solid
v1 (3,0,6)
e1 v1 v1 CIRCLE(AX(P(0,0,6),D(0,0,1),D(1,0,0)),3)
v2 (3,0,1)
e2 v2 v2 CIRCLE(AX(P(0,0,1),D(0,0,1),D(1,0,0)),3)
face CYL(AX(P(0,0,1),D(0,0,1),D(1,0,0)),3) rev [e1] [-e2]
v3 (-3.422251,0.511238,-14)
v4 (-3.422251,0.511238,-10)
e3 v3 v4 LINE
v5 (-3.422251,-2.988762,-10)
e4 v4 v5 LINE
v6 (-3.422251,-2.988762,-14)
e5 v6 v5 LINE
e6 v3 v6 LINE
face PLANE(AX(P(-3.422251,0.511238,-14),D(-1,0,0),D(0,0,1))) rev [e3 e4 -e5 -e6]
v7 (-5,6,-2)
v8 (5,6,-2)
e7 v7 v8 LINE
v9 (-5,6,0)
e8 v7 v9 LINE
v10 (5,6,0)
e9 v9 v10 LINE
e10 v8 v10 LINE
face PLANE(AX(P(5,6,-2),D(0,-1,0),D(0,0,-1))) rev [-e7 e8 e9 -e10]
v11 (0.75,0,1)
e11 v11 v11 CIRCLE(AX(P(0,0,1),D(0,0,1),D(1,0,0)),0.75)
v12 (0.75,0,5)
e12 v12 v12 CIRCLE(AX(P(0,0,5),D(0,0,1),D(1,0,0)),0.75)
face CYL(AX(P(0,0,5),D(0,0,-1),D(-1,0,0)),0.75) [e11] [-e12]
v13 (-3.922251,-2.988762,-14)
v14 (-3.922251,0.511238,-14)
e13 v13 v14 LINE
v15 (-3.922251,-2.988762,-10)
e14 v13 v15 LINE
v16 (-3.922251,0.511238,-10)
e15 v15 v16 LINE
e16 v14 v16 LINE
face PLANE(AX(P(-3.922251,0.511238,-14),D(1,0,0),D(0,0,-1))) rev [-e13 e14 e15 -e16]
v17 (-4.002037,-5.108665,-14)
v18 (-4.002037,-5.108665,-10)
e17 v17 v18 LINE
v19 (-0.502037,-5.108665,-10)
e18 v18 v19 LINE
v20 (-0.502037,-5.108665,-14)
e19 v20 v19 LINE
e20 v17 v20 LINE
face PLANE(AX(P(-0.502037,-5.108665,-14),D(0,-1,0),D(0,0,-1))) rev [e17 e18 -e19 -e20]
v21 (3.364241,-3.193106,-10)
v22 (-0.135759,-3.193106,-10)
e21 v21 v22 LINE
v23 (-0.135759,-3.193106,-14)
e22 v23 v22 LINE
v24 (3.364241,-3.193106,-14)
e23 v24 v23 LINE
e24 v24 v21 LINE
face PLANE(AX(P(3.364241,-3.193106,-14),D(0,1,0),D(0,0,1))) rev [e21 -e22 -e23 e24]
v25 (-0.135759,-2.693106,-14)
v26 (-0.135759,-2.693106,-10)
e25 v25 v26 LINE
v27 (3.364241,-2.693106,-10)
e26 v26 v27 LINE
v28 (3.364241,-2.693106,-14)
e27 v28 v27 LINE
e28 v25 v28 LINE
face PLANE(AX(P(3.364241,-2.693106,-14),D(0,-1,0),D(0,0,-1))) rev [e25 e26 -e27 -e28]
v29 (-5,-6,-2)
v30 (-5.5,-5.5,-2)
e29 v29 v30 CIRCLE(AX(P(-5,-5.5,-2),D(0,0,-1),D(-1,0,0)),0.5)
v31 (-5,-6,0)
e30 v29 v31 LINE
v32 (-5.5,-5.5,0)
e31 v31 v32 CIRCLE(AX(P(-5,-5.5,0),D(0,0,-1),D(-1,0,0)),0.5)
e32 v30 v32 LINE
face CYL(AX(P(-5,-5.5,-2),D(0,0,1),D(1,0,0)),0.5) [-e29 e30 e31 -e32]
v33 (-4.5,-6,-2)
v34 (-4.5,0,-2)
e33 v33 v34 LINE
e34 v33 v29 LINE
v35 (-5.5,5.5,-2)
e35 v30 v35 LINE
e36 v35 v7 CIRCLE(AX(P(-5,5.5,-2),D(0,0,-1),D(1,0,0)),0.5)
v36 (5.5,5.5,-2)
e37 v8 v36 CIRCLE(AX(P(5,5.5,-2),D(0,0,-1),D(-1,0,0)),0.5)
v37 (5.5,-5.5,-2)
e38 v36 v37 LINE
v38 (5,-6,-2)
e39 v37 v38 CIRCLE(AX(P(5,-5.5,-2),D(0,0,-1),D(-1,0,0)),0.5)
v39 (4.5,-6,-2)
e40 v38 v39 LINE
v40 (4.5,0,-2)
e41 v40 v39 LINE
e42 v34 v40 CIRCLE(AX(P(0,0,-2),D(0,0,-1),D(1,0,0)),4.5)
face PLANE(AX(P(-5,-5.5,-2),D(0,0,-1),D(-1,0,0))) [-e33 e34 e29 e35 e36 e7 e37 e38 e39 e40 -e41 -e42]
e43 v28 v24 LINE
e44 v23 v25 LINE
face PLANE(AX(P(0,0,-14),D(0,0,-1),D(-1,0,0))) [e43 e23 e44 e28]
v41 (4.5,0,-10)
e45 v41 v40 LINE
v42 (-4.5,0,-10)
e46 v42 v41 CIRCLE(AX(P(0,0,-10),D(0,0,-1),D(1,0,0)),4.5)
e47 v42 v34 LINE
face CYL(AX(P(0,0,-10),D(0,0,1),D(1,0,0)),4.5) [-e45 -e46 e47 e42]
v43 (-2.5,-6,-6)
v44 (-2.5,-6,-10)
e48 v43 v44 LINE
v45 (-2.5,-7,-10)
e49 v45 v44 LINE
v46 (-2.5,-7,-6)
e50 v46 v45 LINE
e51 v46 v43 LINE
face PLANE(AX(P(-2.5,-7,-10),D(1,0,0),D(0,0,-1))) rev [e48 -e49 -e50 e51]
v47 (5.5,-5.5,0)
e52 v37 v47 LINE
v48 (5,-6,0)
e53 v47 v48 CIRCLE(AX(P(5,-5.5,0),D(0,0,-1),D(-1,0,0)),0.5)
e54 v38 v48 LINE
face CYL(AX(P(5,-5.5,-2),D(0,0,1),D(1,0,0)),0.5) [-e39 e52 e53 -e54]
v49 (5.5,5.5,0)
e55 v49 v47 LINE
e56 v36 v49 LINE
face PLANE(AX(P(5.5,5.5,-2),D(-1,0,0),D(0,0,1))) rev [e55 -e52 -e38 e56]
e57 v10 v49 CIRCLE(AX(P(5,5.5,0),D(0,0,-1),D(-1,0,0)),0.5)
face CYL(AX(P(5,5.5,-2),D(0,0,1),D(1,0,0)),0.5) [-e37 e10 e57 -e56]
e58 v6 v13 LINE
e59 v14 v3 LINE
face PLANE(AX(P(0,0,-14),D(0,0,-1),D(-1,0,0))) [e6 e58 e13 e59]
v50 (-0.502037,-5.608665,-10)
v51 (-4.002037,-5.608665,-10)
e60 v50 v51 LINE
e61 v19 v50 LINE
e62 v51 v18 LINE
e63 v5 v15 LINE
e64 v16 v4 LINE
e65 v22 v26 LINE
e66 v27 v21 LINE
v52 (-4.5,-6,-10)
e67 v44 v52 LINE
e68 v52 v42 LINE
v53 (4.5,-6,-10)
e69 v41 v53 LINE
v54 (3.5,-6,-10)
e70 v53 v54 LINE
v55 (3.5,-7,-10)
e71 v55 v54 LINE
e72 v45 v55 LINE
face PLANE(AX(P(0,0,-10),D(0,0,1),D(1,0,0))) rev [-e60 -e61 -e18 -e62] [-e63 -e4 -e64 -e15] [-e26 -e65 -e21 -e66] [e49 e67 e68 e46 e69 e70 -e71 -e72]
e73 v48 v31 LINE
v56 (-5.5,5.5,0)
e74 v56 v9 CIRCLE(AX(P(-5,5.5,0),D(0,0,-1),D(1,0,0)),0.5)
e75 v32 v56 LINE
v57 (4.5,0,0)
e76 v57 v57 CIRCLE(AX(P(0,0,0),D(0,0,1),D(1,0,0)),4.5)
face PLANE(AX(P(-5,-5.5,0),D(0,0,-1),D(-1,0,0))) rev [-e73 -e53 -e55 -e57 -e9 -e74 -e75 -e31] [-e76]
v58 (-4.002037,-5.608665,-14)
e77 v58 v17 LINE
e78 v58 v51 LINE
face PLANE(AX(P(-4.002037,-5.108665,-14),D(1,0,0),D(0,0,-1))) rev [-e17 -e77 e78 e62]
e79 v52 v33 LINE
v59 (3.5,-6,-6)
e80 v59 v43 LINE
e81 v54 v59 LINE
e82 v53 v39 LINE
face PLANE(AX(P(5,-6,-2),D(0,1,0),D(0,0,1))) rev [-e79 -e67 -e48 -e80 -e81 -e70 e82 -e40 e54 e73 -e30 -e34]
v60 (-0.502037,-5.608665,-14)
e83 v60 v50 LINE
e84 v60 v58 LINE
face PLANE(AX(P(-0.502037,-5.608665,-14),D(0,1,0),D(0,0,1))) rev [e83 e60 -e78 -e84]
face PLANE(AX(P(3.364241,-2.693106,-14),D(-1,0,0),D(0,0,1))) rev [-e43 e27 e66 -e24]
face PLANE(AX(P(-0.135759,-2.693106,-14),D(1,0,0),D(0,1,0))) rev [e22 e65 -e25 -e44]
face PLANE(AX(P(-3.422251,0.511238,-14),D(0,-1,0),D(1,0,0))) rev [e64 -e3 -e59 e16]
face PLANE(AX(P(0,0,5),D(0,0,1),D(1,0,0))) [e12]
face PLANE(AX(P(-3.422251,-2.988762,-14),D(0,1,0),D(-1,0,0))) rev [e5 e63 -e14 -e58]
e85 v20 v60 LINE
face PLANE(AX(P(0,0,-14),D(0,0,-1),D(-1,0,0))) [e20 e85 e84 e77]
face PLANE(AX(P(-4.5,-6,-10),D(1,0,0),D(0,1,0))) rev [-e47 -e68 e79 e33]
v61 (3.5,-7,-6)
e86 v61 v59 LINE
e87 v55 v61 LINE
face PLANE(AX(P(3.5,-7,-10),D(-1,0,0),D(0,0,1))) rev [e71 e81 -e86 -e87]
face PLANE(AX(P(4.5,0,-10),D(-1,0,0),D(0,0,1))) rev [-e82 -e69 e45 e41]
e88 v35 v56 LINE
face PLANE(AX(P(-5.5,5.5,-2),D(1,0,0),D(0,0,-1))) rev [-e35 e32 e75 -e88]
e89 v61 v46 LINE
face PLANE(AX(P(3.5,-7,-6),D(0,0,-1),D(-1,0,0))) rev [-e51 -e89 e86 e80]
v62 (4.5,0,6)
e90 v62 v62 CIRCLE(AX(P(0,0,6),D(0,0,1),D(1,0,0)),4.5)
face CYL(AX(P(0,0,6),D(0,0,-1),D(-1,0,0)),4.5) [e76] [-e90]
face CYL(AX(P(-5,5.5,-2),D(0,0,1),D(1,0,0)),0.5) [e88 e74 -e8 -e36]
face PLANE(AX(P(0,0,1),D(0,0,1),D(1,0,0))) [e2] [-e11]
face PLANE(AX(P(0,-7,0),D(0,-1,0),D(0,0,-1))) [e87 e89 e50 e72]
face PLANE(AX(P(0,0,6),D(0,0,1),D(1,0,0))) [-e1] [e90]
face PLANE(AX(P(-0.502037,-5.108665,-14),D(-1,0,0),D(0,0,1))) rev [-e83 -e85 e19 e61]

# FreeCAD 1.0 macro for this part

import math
import FreeCAD as App
import Part
import Sketcher
from FreeCAD import Vector

doc = App.newDocument("Part")
body = doc.addObject("PartDesign::Body", "Body")

sketch1 = body.newObject("Sketcher::SketchObject", "Sketch")
sketch1.AttachmentSupport = (doc.getObject("XY_Plane"), [""])
sketch1.MapMode = "FlatFace"
sketch1.addGeometry(Part.Circle(Vector(0, 0, 0), Vector(0, 0, 1), 4.5), False)
sketch1.addConstraint(Sketcher.Constraint("Coincident", 0, 3, -1, 1))
sketch1.addConstraint(Sketcher.Constraint("Diameter", 0, 9.0))
pad1 = body.newObject("PartDesign::Pad", "Pad")
pad1.Profile = sketch1
pad1.Length = 6

sketch2 = body.newObject("Sketcher::SketchObject", "Sketch001")
sketch2.AttachmentSupport = (doc.getObject("XY_Plane"), [""])
sketch2.MapMode = "FlatFace"
sketch2.AttachmentOffset = App.Placement(Vector(0, 0, 6), App.Rotation())
sketch2.addGeometry(Part.Circle(Vector(0, 0, 0), Vector(0, 0, 1), 3), False)
sketch2.addConstraint(Sketcher.Constraint("Coincident", 0, 3, -1, 1))
sketch2.addConstraint(Sketcher.Constraint("Diameter", 0, 6.0))
pocket1 = body.newObject("PartDesign::Pocket", "Pocket")
pocket1.Profile = sketch2
pocket1.Length = 5

sketch3 = body.newObject("Sketcher::SketchObject", "Sketch002")
sketch3.AttachmentSupport = (doc.getObject("XY_Plane"), [""])
sketch3.MapMode = "FlatFace"
sketch3.AttachmentOffset = App.Placement(Vector(0, 0, 1), App.Rotation())
sketch3.addGeometry(Part.Circle(Vector(0, 0, 0), Vector(0, 0, 1), 0.8), False)
sketch3.addConstraint(Sketcher.Constraint("Coincident", 0, 3, -1, 1))
sketch3.addConstraint(Sketcher.Constraint("Diameter", 0, 1.5))
pad2 = body.newObject("PartDesign::Pad", "Pad001")
pad2.Profile = sketch3
pad2.Length = 4

sketch4 = body.newObject("Sketcher::SketchObject", "Sketch003")
sketch4.AttachmentSupport = (doc.getObject("XY_Plane"), [""])
sketch4.MapMode = "FlatFace"
sketch4.addGeometry(Part.LineSegment(Vector(-5, 6, 0), Vector(5, 6, 0)), False)
sketch4.addGeometry(Part.ArcOfCircle(Part.Circle(Vector(5, 5.5, 0), Vector(0, 0, 1), 0.5), math.radians(0), math.radians(90)), False)
sketch4.addGeometry(Part.LineSegment(Vector(5.5, 5.5, 0), Vector(5.5, -5.5, 0)), False)
sketch4.addGeometry(Part.ArcOfCircle(Part.Circle(Vector(5, -5.5, 0), Vector(0, 0, 1), 0.5), math.radians(-90), math.radians(0)), False)
sketch4.addGeometry(Part.LineSegment(Vector(5, -6, 0), Vector(-5, -6, 0)), False)
sketch4.addGeometry(Part.ArcOfCircle(Part.Circle(Vector(-5, -5.5, 0), Vector(0, 0, 1), 0.5), math.radians(180), math.radians(270)), False)
sketch4.addGeometry(Part.LineSegment(Vector(-5.5, -5.5, 0), Vector(-5.5, 5.5, 0)), False)
sketch4.addGeometry(Part.ArcOfCircle(Part.Circle(Vector(-5, 5.5, 0), Vector(0, 0, 1), 0.5), math.radians(90), math.radians(180)), False)
sketch4.addConstraint(Sketcher.Constraint("Tangent", 0, 2, 1, 2))
sketch4.addConstraint(Sketcher.Constraint("Tangent", 1, 1, 2, 1))
sketch4.addConstraint(Sketcher.Constraint("Tangent", 2, 2, 3, 2))
sketch4.addConstraint(Sketcher.Constraint("Tangent", 3, 1, 4, 1))
sketch4.addConstraint(Sketcher.Constraint("Tangent", 4, 2, 5, 2))
sketch4.addConstraint(Sketcher.Constraint("Tangent", 5, 1, 6, 1))
sketch4.addConstraint(Sketcher.Constraint("Tangent", 6, 2, 7, 2))
sketch4.addConstraint(Sketcher.Constraint("Tangent", 7, 1, 0, 1))
sketch4.addConstraint(Sketcher.Constraint("Horizontal", 0))
sketch4.addConstraint(Sketcher.Constraint("Vertical", 2))
sketch4.addConstraint(Sketcher.Constraint("Horizontal", 4))
sketch4.addConstraint(Sketcher.Constraint("Vertical", 6))
sketch4.addConstraint(Sketcher.Constraint("Equal", 1, 3))
sketch4.addConstraint(Sketcher.Constraint("Equal", 3, 5))
sketch4.addConstraint(Sketcher.Constraint("Equal", 5, 7))
sketch4.addConstraint(Sketcher.Constraint("Symmetric", 1, 3, 5, 3, -1, 1))
sketch4.addConstraint(Sketcher.Constraint("Radius", 1, 0.5))
sketch4.addConstraint(Sketcher.Constraint("DistanceX", 0, 1, 0, 2, 10.0))
sketch4.addConstraint(Sketcher.Constraint("DistanceY", 2, 2, 2, 1, 11.0))
pad3 = body.newObject("PartDesign::Pad", "Pad002")
pad3.Profile = sketch4
pad3.Length = 2
pad3.Reversed = True

sketch5 = body.newObject("Sketcher::SketchObject", "Sketch004")
sketch5.AttachmentSupport = (doc.getObject("XY_Plane"), [""])
sketch5.MapMode = "FlatFace"
sketch5.AttachmentOffset = App.Placement(Vector(0, 0, -2), App.Rotation())
sketch5.addGeometry(Part.LineSegment(Vector(4.5, 0, 0), Vector(4.5, -6, 0)), False)
sketch5.addGeometry(Part.LineSegment(Vector(4.5, -6, 0), Vector(-4.5, -6, 0)), False)
sketch5.addGeometry(Part.LineSegment(Vector(-4.5, -6, 0), Vector(-4.5, 0, 0)), False)
sketch5.addGeometry(Part.ArcOfCircle(Part.Circle(Vector(0, 0, 0), Vector(0, 0, 1), 4.5), math.radians(0), math.radians(180)), False)
sketch5.addConstraint(Sketcher.Constraint("Coincident", 0, 2, 1, 1))
sketch5.addConstraint(Sketcher.Constraint("Coincident", 1, 2, 2, 1))
sketch5.addConstraint(Sketcher.Constraint("Tangent", 2, 2, 3, 2))
sketch5.addConstraint(Sketcher.Constraint("Tangent", 3, 1, 0, 1))
sketch5.addConstraint(Sketcher.Constraint("Vertical", 0))
sketch5.addConstraint(Sketcher.Constraint("Horizontal", 1))
sketch5.addConstraint(Sketcher.Constraint("Vertical", 2))
sketch5.addConstraint(Sketcher.Constraint("Coincident", 3, 3, -1, 1))
sketch5.addConstraint(Sketcher.Constraint("Radius", 3, 4.5))
sketch5.addConstraint(Sketcher.Constraint("DistanceY", 0, 2, 0, 1, 6.0))
pad4 = body.newObject("PartDesign::Pad", "Pad003")
pad4.Profile = sketch5
pad4.Length = 8
pad4.Reversed = True

sketch6 = body.newObject("Sketcher::SketchObject", "Sketch005")
sketch6.AttachmentSupport = (doc.getObject("XY_Plane"), [""])
sketch6.MapMode = "FlatFace"
sketch6.AttachmentOffset = App.Placement(Vector(0, 0, -10), App.Rotation())
sketch6.addGeometry(Part.LineSegment(Vector(-3.4, 0.5, 0), Vector(-3.4, -3, 0)), False)
sketch6.addGeometry(Part.LineSegment(Vector(-3.4, -3, 0), Vector(-3.9, -3, 0)), False)
sketch6.addGeometry(Part.LineSegment(Vector(-3.9, -3, 0), Vector(-3.9, 0.5, 0)), False)
sketch6.addGeometry(Part.LineSegment(Vector(-3.9, 0.5, 0), Vector(-3.4, 0.5, 0)), False)
sketch6.addGeometry(Part.LineSegment(Vector(-0.5, -5.1, 0), Vector(-0.5, -5.6, 0)), False)
sketch6.addGeometry(Part.LineSegment(Vector(-0.5, -5.6, 0), Vector(-4, -5.6, 0)), False)
sketch6.addGeometry(Part.LineSegment(Vector(-4, -5.6, 0), Vector(-4, -5.1, 0)), False)
sketch6.addGeometry(Part.LineSegment(Vector(-4, -5.1, 0), Vector(-0.5, -5.1, 0)), False)
sketch6.addGeometry(Part.LineSegment(Vector(3.4, -2.7, 0), Vector(3.4, -3.2, 0)), False)
sketch6.addGeometry(Part.LineSegment(Vector(3.4, -3.2, 0), Vector(-0.1, -3.2, 0)), False)
sketch6.addGeometry(Part.LineSegment(Vector(-0.1, -3.2, 0), Vector(-0.1, -2.7, 0)), False)
sketch6.addGeometry(Part.LineSegment(Vector(-0.1, -2.7, 0), Vector(3.4, -2.7, 0)), False)
sketch6.addConstraint(Sketcher.Constraint("Coincident", 0, 2, 1, 1))
sketch6.addConstraint(Sketcher.Constraint("Coincident", 1, 2, 2, 1))
sketch6.addConstraint(Sketcher.Constraint("Coincident", 2, 2, 3, 1))
sketch6.addConstraint(Sketcher.Constraint("Coincident", 3, 2, 0, 1))
sketch6.addConstraint(Sketcher.Constraint("Coincident", 4, 2, 5, 1))
sketch6.addConstraint(Sketcher.Constraint("Coincident", 5, 2, 6, 1))
sketch6.addConstraint(Sketcher.Constraint("Coincident", 6, 2, 7, 1))
sketch6.addConstraint(Sketcher.Constraint("Coincident", 7, 2, 4, 1))
sketch6.addConstraint(Sketcher.Constraint("Coincident", 8, 2, 9, 1))
sketch6.addConstraint(Sketcher.Constraint("Coincident", 9, 2, 10, 1))
sketch6.addConstraint(Sketcher.Constraint("Coincident", 10, 2, 11, 1))
sketch6.addConstraint(Sketcher.Constraint("Coincident", 11, 2, 8, 1))
sketch6.addConstraint(Sketcher.Constraint("Vertical", 0))
sketch6.addConstraint(Sketcher.Constraint("Horizontal", 1))
sketch6.addConstraint(Sketcher.Constraint("Vertical", 2))
sketch6.addConstraint(Sketcher.Constraint("Horizontal", 3))
sketch6.addConstraint(Sketcher.Constraint("Vertical", 4))
sketch6.addConstraint(Sketcher.Constraint("Horizontal", 5))
sketch6.addConstraint(Sketcher.Constraint("Vertical", 6))
sketch6.addConstraint(Sketcher.Constraint("Horizontal", 7))
sketch6.addConstraint(Sketcher.Constraint("Vertical", 8))
sketch6.addConstraint(Sketcher.Constraint("Horizontal", 9))
sketch6.addConstraint(Sketcher.Constraint("Vertical", 10))
sketch6.addConstraint(Sketcher.Constraint("Horizontal", 11))
sketch6.addConstraint(Sketcher.Constraint("Equal", 7, 9))
sketch6.addConstraint(Sketcher.Constraint("Equal", 11, 0))
sketch6.addConstraint(Sketcher.Constraint("Equal", 3, 4))
sketch6.addConstraint(Sketcher.Constraint("Equal", 6, 8))
sketch6.addConstraint(Sketcher.Constraint("DistanceX", 1, 2, 1, 1, 0.5))
sketch6.addConstraint(Sketcher.Constraint("DistanceX", 5, 2, 5, 1, 3.5))
sketch6.addConstraint(Sketcher.Constraint("DistanceX", 0, 2, -1, 1, 3.422251))
sketch6.addConstraint(Sketcher.Constraint("DistanceY", 0, 2, -1, 1, 2.988762))
sketch6.addConstraint(Sketcher.Constraint("DistanceX", -1, 1, 8, 2, 3.364241))
sketch6.addConstraint(Sketcher.Constraint("DistanceX", 7, 2, 8, 2, 3.866278))
sketch6.addConstraint(Sketcher.Constraint("DistanceY", 7, 2, 8, 2, 1.915559))
sketch6.addConstraint(Sketcher.Constraint("DistanceY", 4, 2, -1, 1, 5.608665))
pad5 = body.newObject("PartDesign::Pad", "Pad004")
pad5.Profile = sketch6
pad5.Length = 4
pad5.Reversed = True

sketch7 = body.newObject("Sketcher::SketchObject", "Sketch006")
sketch7.AttachmentSupport = (doc.getObject("XZ_Plane"), [""])
sketch7.MapMode = "FlatFace"
sketch7.AttachmentOffset = App.Placement(Vector(0, 0, 6), App.Rotation())
sketch7.addGeometry(Part.LineSegment(Vector(3.5, -10, 0), Vector(3.5, -6, 0)), False)
sketch7.addGeometry(Part.LineSegment(Vector(3.5, -6, 0), Vector(-2.5, -6, 0)), False)
sketch7.addGeometry(Part.LineSegment(Vector(-2.5, -6, 0), Vector(-2.5, -10, 0)), False)
sketch7.addGeometry(Part.LineSegment(Vector(-2.5, -10, 0), Vector(3.5, -10, 0)), False)
sketch7.addConstraint(Sketcher.Constraint("Coincident", 0, 2, 1, 1))
sketch7.addConstraint(Sketcher.Constraint("Coincident", 1, 2, 2, 1))
sketch7.addConstraint(Sketcher.Constraint("Coincident", 2, 2, 3, 1))
sketch7.addConstraint(Sketcher.Constraint("Coincident", 3, 2, 0, 1))
sketch7.addConstraint(Sketcher.Constraint("Vertical", 0))
sketch7.addConstraint(Sketcher.Constraint("Horizontal", 1))
sketch7.addConstraint(Sketcher.Constraint("Vertical", 2))
sketch7.addConstraint(Sketcher.Constraint("Horizontal", 3))
sketch7.addConstraint(Sketcher.Constraint("DistanceX", 1, 2, 1, 1, 6.0))
sketch7.addConstraint(Sketcher.Constraint("DistanceY", 0, 1, 0, 2, 4.0))
sketch7.addConstraint(Sketcher.Constraint("DistanceY", 0, 2, -1, 1, 6.0))
sketch7.addConstraint(Sketcher.Constraint("DistanceX", -1, 1, 0, 2, 3.5))
pad6 = body.newObject("PartDesign::Pad", "Pad005")
pad6.Profile = sketch7
pad6.Length = 1

doc.recompute()
